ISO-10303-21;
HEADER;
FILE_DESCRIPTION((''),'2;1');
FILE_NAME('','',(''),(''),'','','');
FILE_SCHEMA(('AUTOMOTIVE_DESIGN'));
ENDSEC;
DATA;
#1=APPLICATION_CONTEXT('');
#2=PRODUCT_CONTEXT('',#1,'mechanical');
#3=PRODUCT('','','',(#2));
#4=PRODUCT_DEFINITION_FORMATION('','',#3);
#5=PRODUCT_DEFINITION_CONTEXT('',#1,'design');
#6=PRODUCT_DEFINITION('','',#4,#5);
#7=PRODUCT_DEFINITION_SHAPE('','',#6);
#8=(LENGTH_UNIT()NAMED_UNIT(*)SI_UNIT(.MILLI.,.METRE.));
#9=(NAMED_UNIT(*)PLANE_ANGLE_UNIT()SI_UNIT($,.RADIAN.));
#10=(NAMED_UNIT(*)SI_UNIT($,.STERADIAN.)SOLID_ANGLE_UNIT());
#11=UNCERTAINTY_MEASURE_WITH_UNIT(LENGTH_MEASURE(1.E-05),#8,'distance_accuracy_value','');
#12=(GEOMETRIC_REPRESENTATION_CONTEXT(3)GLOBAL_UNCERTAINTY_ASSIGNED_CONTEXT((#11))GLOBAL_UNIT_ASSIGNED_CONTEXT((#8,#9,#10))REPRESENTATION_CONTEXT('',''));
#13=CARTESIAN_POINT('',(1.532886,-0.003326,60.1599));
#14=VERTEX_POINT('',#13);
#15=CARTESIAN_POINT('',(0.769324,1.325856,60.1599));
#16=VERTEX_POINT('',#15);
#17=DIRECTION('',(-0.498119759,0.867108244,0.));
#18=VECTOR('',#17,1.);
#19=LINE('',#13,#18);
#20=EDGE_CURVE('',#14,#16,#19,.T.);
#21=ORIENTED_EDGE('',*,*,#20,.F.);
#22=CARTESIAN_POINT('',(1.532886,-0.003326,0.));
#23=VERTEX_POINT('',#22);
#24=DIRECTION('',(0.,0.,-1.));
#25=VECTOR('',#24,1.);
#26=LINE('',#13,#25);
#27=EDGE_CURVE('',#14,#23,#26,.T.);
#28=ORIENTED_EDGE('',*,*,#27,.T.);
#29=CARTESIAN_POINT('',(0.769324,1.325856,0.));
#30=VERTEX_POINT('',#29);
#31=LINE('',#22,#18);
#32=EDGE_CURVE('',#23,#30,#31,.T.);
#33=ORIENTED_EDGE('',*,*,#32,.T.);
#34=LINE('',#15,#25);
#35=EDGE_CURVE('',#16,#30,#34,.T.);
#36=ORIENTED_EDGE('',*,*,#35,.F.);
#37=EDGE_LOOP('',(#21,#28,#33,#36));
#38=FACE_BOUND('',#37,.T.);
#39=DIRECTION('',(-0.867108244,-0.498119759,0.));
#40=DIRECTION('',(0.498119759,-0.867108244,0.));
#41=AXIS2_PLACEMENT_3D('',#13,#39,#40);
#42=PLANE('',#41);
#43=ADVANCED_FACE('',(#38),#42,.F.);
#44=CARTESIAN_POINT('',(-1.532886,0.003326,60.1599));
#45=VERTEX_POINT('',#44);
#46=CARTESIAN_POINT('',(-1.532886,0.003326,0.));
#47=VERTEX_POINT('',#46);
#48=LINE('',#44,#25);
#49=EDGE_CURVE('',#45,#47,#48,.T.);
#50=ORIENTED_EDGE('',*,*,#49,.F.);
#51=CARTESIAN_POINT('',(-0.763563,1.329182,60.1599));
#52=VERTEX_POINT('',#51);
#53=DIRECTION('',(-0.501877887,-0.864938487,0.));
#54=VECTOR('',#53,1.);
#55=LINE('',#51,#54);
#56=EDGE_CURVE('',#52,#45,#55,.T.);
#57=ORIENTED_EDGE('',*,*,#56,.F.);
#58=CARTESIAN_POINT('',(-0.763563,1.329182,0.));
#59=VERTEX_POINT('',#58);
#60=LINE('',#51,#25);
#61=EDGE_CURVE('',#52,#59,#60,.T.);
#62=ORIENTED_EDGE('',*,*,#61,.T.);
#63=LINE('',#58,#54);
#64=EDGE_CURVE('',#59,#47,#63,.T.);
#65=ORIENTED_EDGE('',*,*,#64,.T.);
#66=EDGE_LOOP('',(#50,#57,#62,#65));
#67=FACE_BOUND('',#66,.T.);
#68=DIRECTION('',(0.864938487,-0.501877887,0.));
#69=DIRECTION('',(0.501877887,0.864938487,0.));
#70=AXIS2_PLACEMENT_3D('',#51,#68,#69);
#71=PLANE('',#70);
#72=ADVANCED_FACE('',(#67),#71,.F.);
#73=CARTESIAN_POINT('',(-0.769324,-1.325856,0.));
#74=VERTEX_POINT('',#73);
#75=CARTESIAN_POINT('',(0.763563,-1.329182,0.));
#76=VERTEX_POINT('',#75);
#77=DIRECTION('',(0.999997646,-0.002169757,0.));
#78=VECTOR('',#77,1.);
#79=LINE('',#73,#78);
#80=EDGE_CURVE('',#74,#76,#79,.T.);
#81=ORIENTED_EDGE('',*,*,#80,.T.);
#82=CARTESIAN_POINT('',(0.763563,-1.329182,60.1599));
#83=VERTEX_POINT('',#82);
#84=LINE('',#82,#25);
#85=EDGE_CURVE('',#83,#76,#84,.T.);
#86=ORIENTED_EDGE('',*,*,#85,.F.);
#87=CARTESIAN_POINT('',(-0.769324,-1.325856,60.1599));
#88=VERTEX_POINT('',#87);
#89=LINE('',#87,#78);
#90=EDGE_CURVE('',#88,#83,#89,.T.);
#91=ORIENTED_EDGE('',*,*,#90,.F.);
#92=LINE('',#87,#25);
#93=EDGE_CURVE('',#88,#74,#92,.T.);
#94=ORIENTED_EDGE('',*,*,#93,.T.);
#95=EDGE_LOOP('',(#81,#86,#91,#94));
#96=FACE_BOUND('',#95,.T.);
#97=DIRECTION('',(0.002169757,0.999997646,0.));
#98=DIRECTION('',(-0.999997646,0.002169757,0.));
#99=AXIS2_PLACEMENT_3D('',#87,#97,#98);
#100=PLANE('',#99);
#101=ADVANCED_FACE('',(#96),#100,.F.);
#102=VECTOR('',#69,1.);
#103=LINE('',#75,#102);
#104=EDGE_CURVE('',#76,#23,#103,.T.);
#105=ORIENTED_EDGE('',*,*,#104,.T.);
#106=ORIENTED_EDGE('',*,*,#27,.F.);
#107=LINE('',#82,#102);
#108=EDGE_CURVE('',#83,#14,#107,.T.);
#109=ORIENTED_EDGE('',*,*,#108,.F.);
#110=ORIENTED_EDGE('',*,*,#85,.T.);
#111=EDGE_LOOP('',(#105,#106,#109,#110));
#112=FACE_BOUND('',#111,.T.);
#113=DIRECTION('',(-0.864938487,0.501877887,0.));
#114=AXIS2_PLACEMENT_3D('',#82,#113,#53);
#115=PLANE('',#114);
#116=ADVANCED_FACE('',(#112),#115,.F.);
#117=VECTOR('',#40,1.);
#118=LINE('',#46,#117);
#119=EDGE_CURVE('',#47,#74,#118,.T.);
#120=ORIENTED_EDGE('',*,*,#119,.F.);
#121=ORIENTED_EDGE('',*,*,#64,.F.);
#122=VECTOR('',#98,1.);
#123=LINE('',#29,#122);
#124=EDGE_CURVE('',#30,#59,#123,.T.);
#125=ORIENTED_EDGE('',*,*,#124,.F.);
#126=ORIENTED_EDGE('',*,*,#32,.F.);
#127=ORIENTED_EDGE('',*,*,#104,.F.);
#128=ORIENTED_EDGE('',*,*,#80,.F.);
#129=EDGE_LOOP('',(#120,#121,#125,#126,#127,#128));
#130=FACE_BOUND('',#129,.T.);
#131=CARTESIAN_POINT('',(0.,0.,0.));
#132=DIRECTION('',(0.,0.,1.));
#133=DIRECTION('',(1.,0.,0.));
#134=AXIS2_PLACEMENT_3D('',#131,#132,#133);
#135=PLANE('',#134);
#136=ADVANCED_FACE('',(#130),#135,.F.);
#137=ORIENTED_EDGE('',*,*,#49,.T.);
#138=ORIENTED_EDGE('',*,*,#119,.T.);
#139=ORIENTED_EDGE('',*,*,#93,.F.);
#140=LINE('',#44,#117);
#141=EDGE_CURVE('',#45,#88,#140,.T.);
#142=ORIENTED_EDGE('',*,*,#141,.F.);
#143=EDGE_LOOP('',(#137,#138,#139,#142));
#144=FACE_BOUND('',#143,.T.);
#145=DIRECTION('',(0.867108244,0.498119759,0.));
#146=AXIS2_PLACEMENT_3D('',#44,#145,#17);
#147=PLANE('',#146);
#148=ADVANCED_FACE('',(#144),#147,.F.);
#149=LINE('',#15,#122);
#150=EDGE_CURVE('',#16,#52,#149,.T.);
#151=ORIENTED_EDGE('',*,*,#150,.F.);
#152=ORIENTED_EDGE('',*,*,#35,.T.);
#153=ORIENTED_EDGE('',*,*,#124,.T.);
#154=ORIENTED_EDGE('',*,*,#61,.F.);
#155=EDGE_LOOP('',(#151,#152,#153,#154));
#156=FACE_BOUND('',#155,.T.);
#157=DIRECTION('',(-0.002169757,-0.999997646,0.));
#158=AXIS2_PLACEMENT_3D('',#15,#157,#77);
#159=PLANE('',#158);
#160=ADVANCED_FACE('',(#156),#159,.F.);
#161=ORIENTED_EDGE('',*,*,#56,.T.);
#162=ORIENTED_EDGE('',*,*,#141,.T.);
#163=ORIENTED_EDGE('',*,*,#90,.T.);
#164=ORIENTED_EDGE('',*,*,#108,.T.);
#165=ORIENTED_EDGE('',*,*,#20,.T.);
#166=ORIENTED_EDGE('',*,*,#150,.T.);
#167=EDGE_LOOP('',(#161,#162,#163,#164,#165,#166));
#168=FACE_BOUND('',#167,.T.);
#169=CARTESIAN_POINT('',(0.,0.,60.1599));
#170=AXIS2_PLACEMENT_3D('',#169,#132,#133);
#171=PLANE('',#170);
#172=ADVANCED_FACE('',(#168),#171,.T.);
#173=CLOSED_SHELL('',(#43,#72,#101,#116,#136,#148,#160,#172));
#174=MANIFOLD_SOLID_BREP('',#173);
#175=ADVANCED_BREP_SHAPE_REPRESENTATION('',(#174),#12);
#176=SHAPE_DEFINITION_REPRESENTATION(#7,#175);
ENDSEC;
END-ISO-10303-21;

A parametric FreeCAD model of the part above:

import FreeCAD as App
import Part
import Sketcher
Q = App.Units.Quantity


def add_polygon(sketch, points):
    """Adds a closed chain of lines whose ends are joined by coincident constraints."""
    first, n = sketch.GeometryCount, len(points)
    for a, b in zip(points, points[1:] + points[:1]):
        sketch.addGeometry(Part.LineSegment(App.Vector(*a, 0), App.Vector(*b, 0)), False)
    for i in range(n):
        sketch.addConstraint(Sketcher.Constraint("Coincident", first + i, 2, first + (i + 1) % n, 1))

doc = App.newDocument("Part")
params = doc.addObject("Spreadsheet::Sheet", "Params")
for row, (alias, value) in enumerate([
    ("pad1_length", "60.1599 mm"),
], start=1):
    params.set(f"A{row}", alias)
    params.set(f"B{row}", "=" + value)
    params.setAlias(f"B{row}", alias)

body = doc.addObject("PartDesign::Body", "Body")

# Sketch on XY plane
sketch1 = doc.addObject("Sketcher::SketchObject", "Sketch")
body.addObject(sketch1)
sketch1.AttachmentSupport = (doc.XY_Plane, [""])
sketch1.MapMode = "FlatFace"
add_polygon(sketch1, [(0.8, 1.3), (-0.8, 1.3), (-1.5, 0), (-0.8, -1.3), (0.8, -1.3), (1.5, 0)])  # lines 0-5
sketch1.addConstraint(Sketcher.Constraint("Symmetric", 0, 2, 3, 2, -1, 1))
sketch1.addConstraint(Sketcher.Constraint("Symmetric", 1, 2, 4, 2, -1, 1))
sketch1.addConstraint(Sketcher.Constraint("Symmetric", 2, 2, 5, 2, -1, 1))
sketch1.addConstraint(Sketcher.Constraint("Equal", 0, 1))
sketch1.addConstraint(Sketcher.Constraint("Equal", 1, 2))
sketch1.addConstraint(Sketcher.Constraint("Distance", 0, Q("1.53289 mm")))
sketch1.addConstraint(Sketcher.Constraint("DistanceY", -1, 1, 0, 2, Q("1.329182 mm")))
sketch1.addConstraint(Sketcher.Constraint("DistanceY", 2, 2, 1, 2, Q("1.329182 mm")))
sketch1.addConstraint(Sketcher.Constraint("DistanceX", 2, 2, 0, 2, Q("0.005761 mm")))
pad1 = doc.addObject("PartDesign::Pad", "Pad")
body.addObject(pad1)
pad1.Profile = sketch1
pad1.setExpression("Length", "Params.pad1_length")

doc.recompute()
